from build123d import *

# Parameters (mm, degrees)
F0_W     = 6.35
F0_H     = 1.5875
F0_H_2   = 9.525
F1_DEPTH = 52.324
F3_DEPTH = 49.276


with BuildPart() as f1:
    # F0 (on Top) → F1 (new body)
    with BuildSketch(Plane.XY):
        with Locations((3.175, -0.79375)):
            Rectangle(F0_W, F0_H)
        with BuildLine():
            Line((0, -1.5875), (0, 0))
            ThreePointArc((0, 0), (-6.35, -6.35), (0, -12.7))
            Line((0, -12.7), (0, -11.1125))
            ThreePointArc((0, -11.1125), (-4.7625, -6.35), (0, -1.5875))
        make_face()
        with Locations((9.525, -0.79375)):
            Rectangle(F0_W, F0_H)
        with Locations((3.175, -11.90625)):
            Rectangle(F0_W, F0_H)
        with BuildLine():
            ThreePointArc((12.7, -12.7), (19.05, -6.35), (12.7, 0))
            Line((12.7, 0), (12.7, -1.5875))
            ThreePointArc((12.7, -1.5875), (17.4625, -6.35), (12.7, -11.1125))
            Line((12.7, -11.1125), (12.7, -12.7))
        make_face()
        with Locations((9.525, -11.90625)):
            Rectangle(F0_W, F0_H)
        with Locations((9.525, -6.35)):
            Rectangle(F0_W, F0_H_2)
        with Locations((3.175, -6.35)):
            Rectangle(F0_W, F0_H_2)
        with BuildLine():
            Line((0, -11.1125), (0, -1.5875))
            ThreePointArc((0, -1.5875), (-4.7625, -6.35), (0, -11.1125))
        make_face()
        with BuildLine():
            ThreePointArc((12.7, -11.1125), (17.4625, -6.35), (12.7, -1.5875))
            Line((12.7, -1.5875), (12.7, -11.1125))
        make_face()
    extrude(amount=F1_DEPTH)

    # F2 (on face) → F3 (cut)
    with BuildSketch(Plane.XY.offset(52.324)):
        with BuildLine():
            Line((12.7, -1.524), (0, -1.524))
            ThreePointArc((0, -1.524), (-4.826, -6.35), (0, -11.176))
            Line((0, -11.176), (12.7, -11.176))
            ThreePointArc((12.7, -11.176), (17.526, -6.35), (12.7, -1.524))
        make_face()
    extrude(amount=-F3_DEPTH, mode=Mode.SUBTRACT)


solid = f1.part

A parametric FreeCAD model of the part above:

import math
import FreeCAD as App
import Part
import Sketcher
from FreeCAD import Vector
Q = App.Units.Quantity

doc = App.newDocument("Part")
body = doc.addObject("PartDesign::Body", "Body")

# Sketch on XY plane
sketch1 = doc.addObject("Sketcher::SketchObject", "Sketch")
body.addObject(sketch1)
sketch1.AttachmentSupport = (doc.XY_Plane, [""])
sketch1.MapMode = "FlatFace"
sketch1.addGeometry(Part.ArcOfCircle(Part.Circle(Vector(13, -6, 0), Vector(0, 0, 1), 6), math.radians(-90), math.radians(90)), False)
sketch1.addGeometry(Part.LineSegment(Vector(13, 0, 0), Vector(0, 0, 0)), False)
sketch1.addGeometry(Part.ArcOfCircle(Part.Circle(Vector(0, -6, 0), Vector(0, 0, 1), 6), math.radians(90), math.radians(270)), False)
sketch1.addGeometry(Part.LineSegment(Vector(0, -13, 0), Vector(13, -13, 0)), False)
sketch1.addConstraint(Sketcher.Constraint("Tangent", 0, 2, 1, 1))
sketch1.addConstraint(Sketcher.Constraint("Tangent", 1, 2, 2, 1))
sketch1.addConstraint(Sketcher.Constraint("Tangent", 2, 2, 3, 1))
sketch1.addConstraint(Sketcher.Constraint("Tangent", 3, 2, 0, 1))
sketch1.addConstraint(Sketcher.Constraint("Horizontal", 1))
sketch1.addConstraint(Sketcher.Constraint("Horizontal", 3))
sketch1.addConstraint(Sketcher.Constraint("Coincident", 1, 2, -1, 1))
sketch1.addConstraint(Sketcher.Constraint("Radius", 0, Q("0.25 in")))
sketch1.addConstraint(Sketcher.Constraint("DistanceX", 1, 2, 1, 1, Q("0.5 in")))
pad1 = doc.addObject("PartDesign::Pad", "Pad")
body.addObject(pad1)
pad1.Profile = sketch1
pad1.Length = Q("2.06 in")

# Sketch on XY plane
sketch2 = doc.addObject("Sketcher::SketchObject", "Sketch001")
body.addObject(sketch2)
sketch2.AttachmentSupport = (doc.XY_Plane, [""])
sketch2.MapMode = "FlatFace"
sketch2.AttachmentOffset = App.Placement(Vector(0, 0, 2.06 * 25.4), App.Rotation())
sketch2.addGeometry(Part.LineSegment(Vector(12.7, -1.5, 0), Vector(0, -1.5, 0)), False)
sketch2.addGeometry(Part.ArcOfCircle(Part.Circle(Vector(0, -6.3, 0), Vector(0, 0, 1), 4.8), math.radians(90), math.radians(270)), False)
sketch2.addGeometry(Part.LineSegment(Vector(0, -11.2, 0), Vector(12.7, -11.2, 0)), False)
sketch2.addGeometry(Part.ArcOfCircle(Part.Circle(Vector(12.7, -6.3, 0), Vector(0, 0, 1), 4.8), math.radians(-90), math.radians(90)), False)
sketch2.addConstraint(Sketcher.Constraint("Tangent", 0, 2, 1, 1))
sketch2.addConstraint(Sketcher.Constraint("Tangent", 1, 2, 2, 1))
sketch2.addConstraint(Sketcher.Constraint("Tangent", 2, 2, 3, 1))
sketch2.addConstraint(Sketcher.Constraint("Tangent", 3, 2, 0, 1))
sketch2.addConstraint(Sketcher.Constraint("Horizontal", 0))
sketch2.addConstraint(Sketcher.Constraint("Horizontal", 2))
sketch2.addConstraint(Sketcher.Constraint("PointOnObject", 1, 3, -2))
sketch2.addConstraint(Sketcher.Constraint("Radius", 1, Q("0.19 in")))
sketch2.addConstraint(Sketcher.Constraint("DistanceX", 0, 2, 0, 1, Q("0.5 in")))
sketch2.addConstraint(Sketcher.Constraint("DistanceY", 1, 3, -1, 1, Q("0.25 in")))
pocket1 = doc.addObject("PartDesign::Pocket", "Pocket")
body.addObject(pocket1)
pocket1.Profile = sketch2
pocket1.Length = Q("1.94 in")

doc.recompute()
